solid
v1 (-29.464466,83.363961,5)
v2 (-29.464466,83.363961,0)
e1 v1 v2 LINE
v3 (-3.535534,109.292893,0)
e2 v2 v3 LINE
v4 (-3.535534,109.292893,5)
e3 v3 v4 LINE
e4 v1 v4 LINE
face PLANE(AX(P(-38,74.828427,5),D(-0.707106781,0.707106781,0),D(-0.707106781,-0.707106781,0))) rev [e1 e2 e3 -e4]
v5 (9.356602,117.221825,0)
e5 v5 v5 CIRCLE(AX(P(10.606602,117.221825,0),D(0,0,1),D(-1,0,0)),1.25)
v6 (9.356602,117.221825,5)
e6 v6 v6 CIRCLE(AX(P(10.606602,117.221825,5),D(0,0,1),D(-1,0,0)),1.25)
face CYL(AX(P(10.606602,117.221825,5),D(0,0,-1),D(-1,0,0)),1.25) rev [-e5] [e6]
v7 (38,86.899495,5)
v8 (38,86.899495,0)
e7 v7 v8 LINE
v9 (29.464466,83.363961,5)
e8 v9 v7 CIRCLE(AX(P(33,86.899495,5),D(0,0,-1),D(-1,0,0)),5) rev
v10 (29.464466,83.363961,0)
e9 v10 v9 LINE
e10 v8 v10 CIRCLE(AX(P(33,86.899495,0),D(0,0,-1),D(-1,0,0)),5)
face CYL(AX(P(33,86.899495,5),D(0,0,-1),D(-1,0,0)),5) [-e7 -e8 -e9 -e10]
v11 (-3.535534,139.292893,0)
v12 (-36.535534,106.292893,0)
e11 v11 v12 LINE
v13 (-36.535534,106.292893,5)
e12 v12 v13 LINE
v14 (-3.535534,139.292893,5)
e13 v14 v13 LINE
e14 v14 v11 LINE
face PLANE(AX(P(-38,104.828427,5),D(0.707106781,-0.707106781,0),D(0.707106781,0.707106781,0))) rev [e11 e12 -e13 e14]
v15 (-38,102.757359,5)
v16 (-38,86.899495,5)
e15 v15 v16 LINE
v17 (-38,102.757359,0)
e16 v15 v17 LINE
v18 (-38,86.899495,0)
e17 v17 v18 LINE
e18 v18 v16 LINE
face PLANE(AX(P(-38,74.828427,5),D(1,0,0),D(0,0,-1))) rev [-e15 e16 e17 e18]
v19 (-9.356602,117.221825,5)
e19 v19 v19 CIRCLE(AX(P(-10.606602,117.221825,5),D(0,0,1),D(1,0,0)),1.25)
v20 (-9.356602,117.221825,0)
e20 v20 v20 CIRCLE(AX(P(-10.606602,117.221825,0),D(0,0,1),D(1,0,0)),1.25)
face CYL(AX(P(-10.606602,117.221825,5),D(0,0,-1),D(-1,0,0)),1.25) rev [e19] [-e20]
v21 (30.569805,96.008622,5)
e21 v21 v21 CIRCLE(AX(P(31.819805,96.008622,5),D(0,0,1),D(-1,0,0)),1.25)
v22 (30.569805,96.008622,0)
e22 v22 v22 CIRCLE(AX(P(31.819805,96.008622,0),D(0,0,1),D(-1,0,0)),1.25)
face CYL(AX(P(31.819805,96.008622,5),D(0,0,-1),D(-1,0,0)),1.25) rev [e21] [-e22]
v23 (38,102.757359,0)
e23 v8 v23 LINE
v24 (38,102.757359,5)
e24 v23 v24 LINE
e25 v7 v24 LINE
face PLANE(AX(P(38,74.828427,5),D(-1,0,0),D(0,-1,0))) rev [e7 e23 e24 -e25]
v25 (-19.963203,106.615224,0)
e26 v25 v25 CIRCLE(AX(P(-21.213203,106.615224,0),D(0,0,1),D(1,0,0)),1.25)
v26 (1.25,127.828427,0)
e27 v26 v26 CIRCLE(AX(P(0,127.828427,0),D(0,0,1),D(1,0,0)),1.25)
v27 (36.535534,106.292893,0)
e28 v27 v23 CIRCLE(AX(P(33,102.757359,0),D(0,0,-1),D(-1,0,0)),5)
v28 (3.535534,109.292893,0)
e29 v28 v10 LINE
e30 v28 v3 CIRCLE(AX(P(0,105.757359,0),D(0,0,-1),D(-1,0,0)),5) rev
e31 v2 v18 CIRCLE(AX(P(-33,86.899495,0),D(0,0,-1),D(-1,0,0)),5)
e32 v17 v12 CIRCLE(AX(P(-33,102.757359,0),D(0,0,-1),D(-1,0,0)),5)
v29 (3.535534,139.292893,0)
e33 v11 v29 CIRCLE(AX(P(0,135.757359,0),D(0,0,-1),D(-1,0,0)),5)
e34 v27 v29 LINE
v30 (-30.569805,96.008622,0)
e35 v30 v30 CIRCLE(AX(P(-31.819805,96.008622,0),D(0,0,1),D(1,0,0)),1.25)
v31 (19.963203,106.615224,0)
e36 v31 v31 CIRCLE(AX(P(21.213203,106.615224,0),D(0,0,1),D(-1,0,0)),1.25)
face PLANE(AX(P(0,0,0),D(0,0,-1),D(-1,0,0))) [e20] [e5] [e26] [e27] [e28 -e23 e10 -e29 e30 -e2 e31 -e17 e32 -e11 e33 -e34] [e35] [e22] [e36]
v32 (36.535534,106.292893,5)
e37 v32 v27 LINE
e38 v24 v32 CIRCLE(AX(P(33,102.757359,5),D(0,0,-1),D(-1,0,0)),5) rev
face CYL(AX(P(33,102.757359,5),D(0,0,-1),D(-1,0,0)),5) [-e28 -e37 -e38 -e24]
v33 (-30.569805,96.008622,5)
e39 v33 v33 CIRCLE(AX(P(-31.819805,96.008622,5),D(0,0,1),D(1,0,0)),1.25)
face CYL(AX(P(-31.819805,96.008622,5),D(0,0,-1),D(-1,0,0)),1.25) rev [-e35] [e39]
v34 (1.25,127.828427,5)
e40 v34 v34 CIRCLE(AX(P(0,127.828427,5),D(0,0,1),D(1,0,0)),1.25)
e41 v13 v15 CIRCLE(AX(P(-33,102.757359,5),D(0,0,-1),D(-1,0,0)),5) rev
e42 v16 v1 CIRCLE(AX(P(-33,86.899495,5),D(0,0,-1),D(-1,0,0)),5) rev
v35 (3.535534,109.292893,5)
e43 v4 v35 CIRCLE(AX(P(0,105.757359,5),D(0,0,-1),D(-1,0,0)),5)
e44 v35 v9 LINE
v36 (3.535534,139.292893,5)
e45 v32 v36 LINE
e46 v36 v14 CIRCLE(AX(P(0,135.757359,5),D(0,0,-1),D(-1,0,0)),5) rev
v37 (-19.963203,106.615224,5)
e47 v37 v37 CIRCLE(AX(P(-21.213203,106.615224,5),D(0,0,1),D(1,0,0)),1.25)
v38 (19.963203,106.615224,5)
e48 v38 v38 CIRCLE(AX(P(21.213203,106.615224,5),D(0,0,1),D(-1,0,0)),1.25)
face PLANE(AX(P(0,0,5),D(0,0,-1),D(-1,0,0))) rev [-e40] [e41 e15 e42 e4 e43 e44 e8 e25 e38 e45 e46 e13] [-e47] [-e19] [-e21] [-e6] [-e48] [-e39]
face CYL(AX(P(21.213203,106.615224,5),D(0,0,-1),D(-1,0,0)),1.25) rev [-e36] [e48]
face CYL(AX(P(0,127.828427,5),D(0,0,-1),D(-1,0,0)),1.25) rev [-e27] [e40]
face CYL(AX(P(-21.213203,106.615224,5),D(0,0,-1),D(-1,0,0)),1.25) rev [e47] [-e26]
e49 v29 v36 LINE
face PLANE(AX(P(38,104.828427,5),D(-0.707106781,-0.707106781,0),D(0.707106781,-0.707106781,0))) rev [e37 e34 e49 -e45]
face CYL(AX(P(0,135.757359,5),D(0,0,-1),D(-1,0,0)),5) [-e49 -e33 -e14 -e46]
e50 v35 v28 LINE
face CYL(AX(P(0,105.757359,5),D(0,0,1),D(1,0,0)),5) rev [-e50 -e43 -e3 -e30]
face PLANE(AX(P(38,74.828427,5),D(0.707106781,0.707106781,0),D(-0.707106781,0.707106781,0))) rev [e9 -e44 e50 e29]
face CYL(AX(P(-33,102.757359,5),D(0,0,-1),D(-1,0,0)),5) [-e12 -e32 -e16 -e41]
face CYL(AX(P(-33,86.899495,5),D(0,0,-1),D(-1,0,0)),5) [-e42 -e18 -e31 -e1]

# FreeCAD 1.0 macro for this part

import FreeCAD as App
import Part
import Sketcher

V = App.Vector
Q = App.Units.Quantity


def edges_at(feature, points):
    """Names of the edges that pass closest to the given points."""
    edges = feature.Shape.Edges
    near = lambda p: min(range(len(edges)), key=lambda i: edges[i].distToShape(Part.Vertex(*p))[0])
    return sorted({f"Edge{near(p) + 1}" for p in points})

doc = App.newDocument("Part")
params = doc.addObject("Spreadsheet::Sheet", "Params")
for row, (alias, value) in enumerate([
    ("sketch1_diameter", "2.5 mm"),
    ("sketch1_height", "30 mm"),
    ("pad1_length", "5 mm"),
    ("fillet_radius", "5 mm"),
], start=1):
    params.set(f"A{row}", alias)
    params.set(f"B{row}", "=" + value)
    params.setAlias(f"B{row}", alias)

body = doc.addObject("PartDesign::Body", "Body")

sketch1 = doc.addObject("Sketcher::SketchObject", "Sketch")
body.addObject(sketch1)
sketch1.AttachmentSupport = (doc.XY_Plane, [""])
sketch1.MapMode = "FlatFace"
sketch1.addGeometry(Part.LineSegment(V(-38, 74.8, 0), V(0, 112.8, 0)), False)
sketch1.addGeometry(Part.LineSegment(V(0, 112.8, 0), V(38, 74.8, 0)), False)
sketch1.addGeometry(Part.LineSegment(V(38, 74.8, 0), V(38, 104.8, 0)), False)
sketch1.addGeometry(Part.LineSegment(V(38, 104.8, 0), V(0, 142.8, 0)), False)
sketch1.addGeometry(Part.LineSegment(V(0, 142.8, 0), V(-38, 104.8, 0)), False)
sketch1.addGeometry(Part.LineSegment(V(-38, 104.8, 0), V(-38, 74.8, 0)), False)
sketch1.addGeometry(Part.Circle(V(-31.8, 96, 0), V(0, 0, 1), 1.2), False)
sketch1.addGeometry(Part.Circle(V(-21.2, 106.6, 0), V(0, 0, 1), 1.2), False)
sketch1.addGeometry(Part.Circle(V(31.8, 96, 0), V(0, 0, 1), 1.2), False)
sketch1.addGeometry(Part.Circle(V(21.2, 106.6, 0), V(0, 0, 1), 1.2), False)
sketch1.addGeometry(Part.Circle(V(-10.6, 117.2, 0), V(0, 0, 1), 1.2), False)
sketch1.addGeometry(Part.Circle(V(10.6, 117.2, 0), V(0, 0, 1), 1.2), False)
sketch1.addGeometry(Part.Circle(V(0, 127.8, 0), V(0, 0, 1), 1.2), False)
sketch1.addConstraint(Sketcher.Constraint("Coincident", 0, 2, 1, 1))
sketch1.addConstraint(Sketcher.Constraint("Coincident", 1, 2, 2, 1))
sketch1.addConstraint(Sketcher.Constraint("Coincident", 2, 2, 3, 1))
sketch1.addConstraint(Sketcher.Constraint("Coincident", 3, 2, 4, 1))
sketch1.addConstraint(Sketcher.Constraint("Coincident", 4, 2, 5, 1))
sketch1.addConstraint(Sketcher.Constraint("Coincident", 5, 2, 0, 1))
sketch1.addConstraint(Sketcher.Constraint("Vertical", 2))
sketch1.addConstraint(Sketcher.Constraint("Vertical", 5))
sketch1.addConstraint(Sketcher.Constraint("Equal", 6, 7))
sketch1.addConstraint(Sketcher.Constraint("Equal", 7, 8))
sketch1.addConstraint(Sketcher.Constraint("Equal", 8, 9))
sketch1.addConstraint(Sketcher.Constraint("Equal", 9, 10))
sketch1.addConstraint(Sketcher.Constraint("Equal", 10, 11))
sketch1.addConstraint(Sketcher.Constraint("Equal", 11, 12))
sketch1.addConstraint(Sketcher.Constraint("Symmetric", 6, 3, 8, 3, -2))
sketch1.addConstraint(Sketcher.Constraint("Symmetric", 7, 3, 9, 3, -2))
sketch1.addConstraint(Sketcher.Constraint("Symmetric", 10, 3, 11, 3, -2))
sketch1.addConstraint(Sketcher.Constraint("Symmetric", 2, 2, 4, 2, -2))
sketch1.addConstraint(Sketcher.Constraint("PointOnObject", 12, 3, -2))
sketch1.addConstraint(Sketcher.Constraint("PointOnObject", 0, 2, -2))
sketch1.addConstraint(Sketcher.Constraint("PointOnObject", 3, 2, -2))
sketch1.addConstraint(Sketcher.Constraint("Perpendicular", 0, 1))
sketch1.addConstraint(Sketcher.Constraint("Parallel", 1, 3))
sketch1.addConstraint(Sketcher.Constraint("Perpendicular", 3, 4))
sketch1.addConstraint(Sketcher.Constraint("Diameter", 6, Q("2.5 mm")))
sketch1.addConstraint(Sketcher.Constraint("DistanceY", 2, 1, 2, 2, Q("30 mm")))
sketch1.addConstraint(Sketcher.Constraint("DistanceX", -1, 1, 1, 2, Q("38 mm")))
sketch1.addConstraint(Sketcher.Constraint("DistanceY", 0, 2, 12, 3, Q("15 mm")))
sketch1.addConstraint(Sketcher.Constraint("DistanceX", 10, 3, -1, 1, Q("10.606602 mm")))
sketch1.addConstraint(Sketcher.Constraint("DistanceX", 6, 3, 7, 3, Q("10.606602 mm")))
sketch1.addConstraint(Sketcher.Constraint("DistanceY", 6, 3, 7, 3, Q("10.606602 mm")))
sketch1.addConstraint(Sketcher.Constraint("DistanceX", 7, 3, 10, 3, Q("10.606602 mm")))
sketch1.addConstraint(Sketcher.Constraint("DistanceY", 7, 3, 10, 3, Q("10.606602 mm")))
sketch1.addConstraint(Sketcher.Constraint("DistanceY", 10, 3, 12, 3, Q("10.606602 mm")))
sketch1.addConstraint(Sketcher.Constraint("DistanceY", -1, 1, 6, 3, Q("96.008622 mm")))
sketch1.setExpression("Constraints[24]", "Params.sketch1_diameter")
sketch1.setExpression("Constraints[25]", "Params.sketch1_height")
pad1 = doc.addObject("PartDesign::Pad", "Pad")
body.addObject(pad1)
pad1.Profile = sketch1
pad1.setExpression("Length", "Params.pad1_length")
doc.recompute()

fillet = doc.addObject("PartDesign::Fillet", "Fillet")
body.addObject(fillet)
fillet.Base = (pad1, edges_at(pad1, [
    (-38, 104.828, 2.5),
    (0, 142.828, 2.5),
    (38, 104.828, 2.5),
    (38, 74.828, 2.5),
    (0, 112.828, 2.5),
    (-38, 74.828, 2.5),
]))
fillet.setExpression("Radius", "Params.fillet_radius")

doc.recompute()
